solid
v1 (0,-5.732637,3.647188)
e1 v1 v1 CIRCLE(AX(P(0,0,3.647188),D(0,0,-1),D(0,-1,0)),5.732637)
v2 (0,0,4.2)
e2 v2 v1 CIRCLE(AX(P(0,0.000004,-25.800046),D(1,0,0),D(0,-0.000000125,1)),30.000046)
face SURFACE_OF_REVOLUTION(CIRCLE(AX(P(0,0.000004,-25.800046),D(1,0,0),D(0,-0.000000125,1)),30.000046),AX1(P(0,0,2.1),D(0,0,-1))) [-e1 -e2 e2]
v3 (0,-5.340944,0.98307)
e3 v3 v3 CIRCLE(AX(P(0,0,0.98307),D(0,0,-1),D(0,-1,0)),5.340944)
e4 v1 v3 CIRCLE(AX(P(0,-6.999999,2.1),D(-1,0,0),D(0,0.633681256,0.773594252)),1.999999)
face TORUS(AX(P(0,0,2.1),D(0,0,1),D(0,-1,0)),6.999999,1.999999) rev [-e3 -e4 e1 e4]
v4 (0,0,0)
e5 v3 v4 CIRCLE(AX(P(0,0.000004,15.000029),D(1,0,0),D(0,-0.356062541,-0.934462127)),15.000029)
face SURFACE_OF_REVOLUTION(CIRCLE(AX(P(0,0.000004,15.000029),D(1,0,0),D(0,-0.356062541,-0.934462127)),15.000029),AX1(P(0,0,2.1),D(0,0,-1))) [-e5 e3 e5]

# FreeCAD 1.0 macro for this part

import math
import FreeCAD as App
import Part
import Sketcher

doc = App.newDocument("Part")
body = doc.addObject("PartDesign::Body", "Body")

sketch1 = body.newObject("Sketcher::SketchObject", "Sketch")
sketch1.AttachmentSupport = (doc.getObject("YZ_Plane"), [""])
sketch1.MapMode = "FlatFace"
sketch1.addGeometry([
    Part.ArcOfCircle(Part.Circle(App.Vector(-6.999999, 2.1, 0), App.Vector(0, 0, 1), 1.999999), math.radians(-33.949733), math.radians(50.677756)),
    Part.ArcOfCircle(Part.Circle(App.Vector(0.000004, 15.000029, 0), App.Vector(0, 0, 1), 15.000029), math.radians(-110.858579), math.radians(-90.000017)),
    Part.LineSegment(App.Vector(0, 0, 0), App.Vector(0, 4.2, 0)),
    Part.ArcOfCircle(Part.Circle(App.Vector(0.000004, -25.800046, 0), App.Vector(0, 0, 1), 30.000046), math.radians(90.000007), math.radians(101.01627)),
], False)
sketch1.addConstraint([
    Sketcher.Constraint("Coincident", 0, 1, 1, 1),
    Sketcher.Constraint("Coincident", 1, 2, 2, 1),
    Sketcher.Constraint("Coincident", 2, 2, 3, 1),
    Sketcher.Constraint("Coincident", 3, 2, 0, 2),
    Sketcher.Constraint("Vertical", 2),
    Sketcher.Constraint("Coincident", 1, 2, -1, 1),
    Sketcher.Constraint("Vertical", 1, 3, 3, 3),
    Sketcher.Constraint("Radius", 0, 1.999999),
    Sketcher.Constraint("DistanceY", 2, 1, 2, 2, 4.2),
    Sketcher.Constraint("DistanceX", 0, 3, -1, 1, 6.999999),
    Sketcher.Constraint("DistanceY", -1, 1, 0, 3, 2.1),
    Sketcher.Constraint("Radius", 1, 15.000029),
    Sketcher.Constraint("Radius", 3, 30.000046),
    Sketcher.Constraint("DistanceY", -1, 1, 0, 1, 0.98307),
])
revolution = body.newObject("PartDesign::Revolution", "Revolution")
revolution.Profile = sketch1
revolution.ReferenceAxis = (sketch1, ["V_Axis"])
revolution.Angle = 360

doc.recompute()
